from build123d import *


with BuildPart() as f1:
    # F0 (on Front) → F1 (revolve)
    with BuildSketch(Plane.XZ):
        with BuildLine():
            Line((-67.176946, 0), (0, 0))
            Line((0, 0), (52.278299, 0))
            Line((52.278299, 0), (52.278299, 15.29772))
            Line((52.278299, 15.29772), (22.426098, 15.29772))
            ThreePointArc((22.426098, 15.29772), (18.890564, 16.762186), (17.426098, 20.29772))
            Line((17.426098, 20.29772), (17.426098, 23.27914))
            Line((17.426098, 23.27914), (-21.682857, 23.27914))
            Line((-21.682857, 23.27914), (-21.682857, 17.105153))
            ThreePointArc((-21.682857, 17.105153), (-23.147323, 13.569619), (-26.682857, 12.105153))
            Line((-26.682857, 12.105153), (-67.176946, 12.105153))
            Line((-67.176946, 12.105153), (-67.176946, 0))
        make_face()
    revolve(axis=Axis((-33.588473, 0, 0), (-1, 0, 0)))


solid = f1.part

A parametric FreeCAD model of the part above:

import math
import FreeCAD as App
import Part
import Sketcher

doc = App.newDocument("Part")
body = doc.addObject("PartDesign::Body", "Body")

sketch1 = body.newObject("Sketcher::SketchObject", "Sketch")
sketch1.AttachmentSupport = (doc.getObject("XZ_Plane"), [""])
sketch1.MapMode = "FlatFace"
sketch1.addGeometry([
    Part.LineSegment(App.Vector(-67.2, 0, 0), App.Vector(52.3, 0, 0)),
    Part.LineSegment(App.Vector(52.3, 0, 0), App.Vector(52.3, 15.3, 0)),
    Part.LineSegment(App.Vector(52.3, 15.3, 0), App.Vector(22.4, 15.3, 0)),
    Part.ArcOfCircle(Part.Circle(App.Vector(22.4, 20.3, 0), App.Vector(0, 0, 1), 5), math.radians(180), math.radians(270)),
    Part.LineSegment(App.Vector(17.4, 20.3, 0), App.Vector(17.4, 23.3, 0)),
    Part.LineSegment(App.Vector(17.4, 23.3, 0), App.Vector(-21.7, 23.3, 0)),
    Part.LineSegment(App.Vector(-21.7, 23.3, 0), App.Vector(-21.7, 17.1, 0)),
    Part.ArcOfCircle(Part.Circle(App.Vector(-26.7, 17.1, 0), App.Vector(0, 0, 1), 5), math.radians(-90), math.radians(0)),
    Part.LineSegment(App.Vector(-26.7, 12.1, 0), App.Vector(-67.2, 12.1, 0)),
    Part.LineSegment(App.Vector(-67.2, 12.1, 0), App.Vector(-67.2, 0, 0)),
], False)
sketch1.addConstraint([
    Sketcher.Constraint("Coincident", 0, 2, 1, 1),
    Sketcher.Constraint("Coincident", 1, 2, 2, 1),
    Sketcher.Constraint("Tangent", 2, 2, 3, 2),
    Sketcher.Constraint("Tangent", 3, 1, 4, 1),
    Sketcher.Constraint("Coincident", 4, 2, 5, 1),
    Sketcher.Constraint("Coincident", 5, 2, 6, 1),
    Sketcher.Constraint("Tangent", 6, 2, 7, 2),
    Sketcher.Constraint("Tangent", 7, 1, 8, 1),
    Sketcher.Constraint("Coincident", 8, 2, 9, 1),
    Sketcher.Constraint("Coincident", 9, 2, 0, 1),
    Sketcher.Constraint("Horizontal", 0),
    Sketcher.Constraint("Vertical", 1),
    Sketcher.Constraint("Horizontal", 2),
    Sketcher.Constraint("Vertical", 4),
    Sketcher.Constraint("Horizontal", 5),
    Sketcher.Constraint("Vertical", 6),
    Sketcher.Constraint("Horizontal", 8),
    Sketcher.Constraint("Vertical", 9),
    Sketcher.Constraint("Equal", 3, 7),
    Sketcher.Constraint("PointOnObject", 0, 2, -1),
    Sketcher.Constraint("Radius", 3, 5.0),
    Sketcher.Constraint("DistanceX", 2, 2, 2, 1, 29.852201),
    Sketcher.Constraint("DistanceX", 8, 2, 8, 1, 40.494089),
    Sketcher.Constraint("DistanceY", 1, 1, 1, 2, 15.29772),
    Sketcher.Constraint("DistanceY", 4, 1, 4, 2, 2.98142),
    Sketcher.Constraint("DistanceX", -1, 1, 0, 2, 52.278299),
    Sketcher.Constraint("DistanceX", 0, 1, 0, 2, 119.455245),
    Sketcher.Constraint("DistanceY", 6, 2, 6, 1, 6.173987),
])
revolution = body.newObject("PartDesign::Revolution", "Revolution")
revolution.Profile = sketch1
revolution.ReferenceAxis = (sketch1, ["H_Axis"])
revolution.Angle = 360

doc.recompute()
